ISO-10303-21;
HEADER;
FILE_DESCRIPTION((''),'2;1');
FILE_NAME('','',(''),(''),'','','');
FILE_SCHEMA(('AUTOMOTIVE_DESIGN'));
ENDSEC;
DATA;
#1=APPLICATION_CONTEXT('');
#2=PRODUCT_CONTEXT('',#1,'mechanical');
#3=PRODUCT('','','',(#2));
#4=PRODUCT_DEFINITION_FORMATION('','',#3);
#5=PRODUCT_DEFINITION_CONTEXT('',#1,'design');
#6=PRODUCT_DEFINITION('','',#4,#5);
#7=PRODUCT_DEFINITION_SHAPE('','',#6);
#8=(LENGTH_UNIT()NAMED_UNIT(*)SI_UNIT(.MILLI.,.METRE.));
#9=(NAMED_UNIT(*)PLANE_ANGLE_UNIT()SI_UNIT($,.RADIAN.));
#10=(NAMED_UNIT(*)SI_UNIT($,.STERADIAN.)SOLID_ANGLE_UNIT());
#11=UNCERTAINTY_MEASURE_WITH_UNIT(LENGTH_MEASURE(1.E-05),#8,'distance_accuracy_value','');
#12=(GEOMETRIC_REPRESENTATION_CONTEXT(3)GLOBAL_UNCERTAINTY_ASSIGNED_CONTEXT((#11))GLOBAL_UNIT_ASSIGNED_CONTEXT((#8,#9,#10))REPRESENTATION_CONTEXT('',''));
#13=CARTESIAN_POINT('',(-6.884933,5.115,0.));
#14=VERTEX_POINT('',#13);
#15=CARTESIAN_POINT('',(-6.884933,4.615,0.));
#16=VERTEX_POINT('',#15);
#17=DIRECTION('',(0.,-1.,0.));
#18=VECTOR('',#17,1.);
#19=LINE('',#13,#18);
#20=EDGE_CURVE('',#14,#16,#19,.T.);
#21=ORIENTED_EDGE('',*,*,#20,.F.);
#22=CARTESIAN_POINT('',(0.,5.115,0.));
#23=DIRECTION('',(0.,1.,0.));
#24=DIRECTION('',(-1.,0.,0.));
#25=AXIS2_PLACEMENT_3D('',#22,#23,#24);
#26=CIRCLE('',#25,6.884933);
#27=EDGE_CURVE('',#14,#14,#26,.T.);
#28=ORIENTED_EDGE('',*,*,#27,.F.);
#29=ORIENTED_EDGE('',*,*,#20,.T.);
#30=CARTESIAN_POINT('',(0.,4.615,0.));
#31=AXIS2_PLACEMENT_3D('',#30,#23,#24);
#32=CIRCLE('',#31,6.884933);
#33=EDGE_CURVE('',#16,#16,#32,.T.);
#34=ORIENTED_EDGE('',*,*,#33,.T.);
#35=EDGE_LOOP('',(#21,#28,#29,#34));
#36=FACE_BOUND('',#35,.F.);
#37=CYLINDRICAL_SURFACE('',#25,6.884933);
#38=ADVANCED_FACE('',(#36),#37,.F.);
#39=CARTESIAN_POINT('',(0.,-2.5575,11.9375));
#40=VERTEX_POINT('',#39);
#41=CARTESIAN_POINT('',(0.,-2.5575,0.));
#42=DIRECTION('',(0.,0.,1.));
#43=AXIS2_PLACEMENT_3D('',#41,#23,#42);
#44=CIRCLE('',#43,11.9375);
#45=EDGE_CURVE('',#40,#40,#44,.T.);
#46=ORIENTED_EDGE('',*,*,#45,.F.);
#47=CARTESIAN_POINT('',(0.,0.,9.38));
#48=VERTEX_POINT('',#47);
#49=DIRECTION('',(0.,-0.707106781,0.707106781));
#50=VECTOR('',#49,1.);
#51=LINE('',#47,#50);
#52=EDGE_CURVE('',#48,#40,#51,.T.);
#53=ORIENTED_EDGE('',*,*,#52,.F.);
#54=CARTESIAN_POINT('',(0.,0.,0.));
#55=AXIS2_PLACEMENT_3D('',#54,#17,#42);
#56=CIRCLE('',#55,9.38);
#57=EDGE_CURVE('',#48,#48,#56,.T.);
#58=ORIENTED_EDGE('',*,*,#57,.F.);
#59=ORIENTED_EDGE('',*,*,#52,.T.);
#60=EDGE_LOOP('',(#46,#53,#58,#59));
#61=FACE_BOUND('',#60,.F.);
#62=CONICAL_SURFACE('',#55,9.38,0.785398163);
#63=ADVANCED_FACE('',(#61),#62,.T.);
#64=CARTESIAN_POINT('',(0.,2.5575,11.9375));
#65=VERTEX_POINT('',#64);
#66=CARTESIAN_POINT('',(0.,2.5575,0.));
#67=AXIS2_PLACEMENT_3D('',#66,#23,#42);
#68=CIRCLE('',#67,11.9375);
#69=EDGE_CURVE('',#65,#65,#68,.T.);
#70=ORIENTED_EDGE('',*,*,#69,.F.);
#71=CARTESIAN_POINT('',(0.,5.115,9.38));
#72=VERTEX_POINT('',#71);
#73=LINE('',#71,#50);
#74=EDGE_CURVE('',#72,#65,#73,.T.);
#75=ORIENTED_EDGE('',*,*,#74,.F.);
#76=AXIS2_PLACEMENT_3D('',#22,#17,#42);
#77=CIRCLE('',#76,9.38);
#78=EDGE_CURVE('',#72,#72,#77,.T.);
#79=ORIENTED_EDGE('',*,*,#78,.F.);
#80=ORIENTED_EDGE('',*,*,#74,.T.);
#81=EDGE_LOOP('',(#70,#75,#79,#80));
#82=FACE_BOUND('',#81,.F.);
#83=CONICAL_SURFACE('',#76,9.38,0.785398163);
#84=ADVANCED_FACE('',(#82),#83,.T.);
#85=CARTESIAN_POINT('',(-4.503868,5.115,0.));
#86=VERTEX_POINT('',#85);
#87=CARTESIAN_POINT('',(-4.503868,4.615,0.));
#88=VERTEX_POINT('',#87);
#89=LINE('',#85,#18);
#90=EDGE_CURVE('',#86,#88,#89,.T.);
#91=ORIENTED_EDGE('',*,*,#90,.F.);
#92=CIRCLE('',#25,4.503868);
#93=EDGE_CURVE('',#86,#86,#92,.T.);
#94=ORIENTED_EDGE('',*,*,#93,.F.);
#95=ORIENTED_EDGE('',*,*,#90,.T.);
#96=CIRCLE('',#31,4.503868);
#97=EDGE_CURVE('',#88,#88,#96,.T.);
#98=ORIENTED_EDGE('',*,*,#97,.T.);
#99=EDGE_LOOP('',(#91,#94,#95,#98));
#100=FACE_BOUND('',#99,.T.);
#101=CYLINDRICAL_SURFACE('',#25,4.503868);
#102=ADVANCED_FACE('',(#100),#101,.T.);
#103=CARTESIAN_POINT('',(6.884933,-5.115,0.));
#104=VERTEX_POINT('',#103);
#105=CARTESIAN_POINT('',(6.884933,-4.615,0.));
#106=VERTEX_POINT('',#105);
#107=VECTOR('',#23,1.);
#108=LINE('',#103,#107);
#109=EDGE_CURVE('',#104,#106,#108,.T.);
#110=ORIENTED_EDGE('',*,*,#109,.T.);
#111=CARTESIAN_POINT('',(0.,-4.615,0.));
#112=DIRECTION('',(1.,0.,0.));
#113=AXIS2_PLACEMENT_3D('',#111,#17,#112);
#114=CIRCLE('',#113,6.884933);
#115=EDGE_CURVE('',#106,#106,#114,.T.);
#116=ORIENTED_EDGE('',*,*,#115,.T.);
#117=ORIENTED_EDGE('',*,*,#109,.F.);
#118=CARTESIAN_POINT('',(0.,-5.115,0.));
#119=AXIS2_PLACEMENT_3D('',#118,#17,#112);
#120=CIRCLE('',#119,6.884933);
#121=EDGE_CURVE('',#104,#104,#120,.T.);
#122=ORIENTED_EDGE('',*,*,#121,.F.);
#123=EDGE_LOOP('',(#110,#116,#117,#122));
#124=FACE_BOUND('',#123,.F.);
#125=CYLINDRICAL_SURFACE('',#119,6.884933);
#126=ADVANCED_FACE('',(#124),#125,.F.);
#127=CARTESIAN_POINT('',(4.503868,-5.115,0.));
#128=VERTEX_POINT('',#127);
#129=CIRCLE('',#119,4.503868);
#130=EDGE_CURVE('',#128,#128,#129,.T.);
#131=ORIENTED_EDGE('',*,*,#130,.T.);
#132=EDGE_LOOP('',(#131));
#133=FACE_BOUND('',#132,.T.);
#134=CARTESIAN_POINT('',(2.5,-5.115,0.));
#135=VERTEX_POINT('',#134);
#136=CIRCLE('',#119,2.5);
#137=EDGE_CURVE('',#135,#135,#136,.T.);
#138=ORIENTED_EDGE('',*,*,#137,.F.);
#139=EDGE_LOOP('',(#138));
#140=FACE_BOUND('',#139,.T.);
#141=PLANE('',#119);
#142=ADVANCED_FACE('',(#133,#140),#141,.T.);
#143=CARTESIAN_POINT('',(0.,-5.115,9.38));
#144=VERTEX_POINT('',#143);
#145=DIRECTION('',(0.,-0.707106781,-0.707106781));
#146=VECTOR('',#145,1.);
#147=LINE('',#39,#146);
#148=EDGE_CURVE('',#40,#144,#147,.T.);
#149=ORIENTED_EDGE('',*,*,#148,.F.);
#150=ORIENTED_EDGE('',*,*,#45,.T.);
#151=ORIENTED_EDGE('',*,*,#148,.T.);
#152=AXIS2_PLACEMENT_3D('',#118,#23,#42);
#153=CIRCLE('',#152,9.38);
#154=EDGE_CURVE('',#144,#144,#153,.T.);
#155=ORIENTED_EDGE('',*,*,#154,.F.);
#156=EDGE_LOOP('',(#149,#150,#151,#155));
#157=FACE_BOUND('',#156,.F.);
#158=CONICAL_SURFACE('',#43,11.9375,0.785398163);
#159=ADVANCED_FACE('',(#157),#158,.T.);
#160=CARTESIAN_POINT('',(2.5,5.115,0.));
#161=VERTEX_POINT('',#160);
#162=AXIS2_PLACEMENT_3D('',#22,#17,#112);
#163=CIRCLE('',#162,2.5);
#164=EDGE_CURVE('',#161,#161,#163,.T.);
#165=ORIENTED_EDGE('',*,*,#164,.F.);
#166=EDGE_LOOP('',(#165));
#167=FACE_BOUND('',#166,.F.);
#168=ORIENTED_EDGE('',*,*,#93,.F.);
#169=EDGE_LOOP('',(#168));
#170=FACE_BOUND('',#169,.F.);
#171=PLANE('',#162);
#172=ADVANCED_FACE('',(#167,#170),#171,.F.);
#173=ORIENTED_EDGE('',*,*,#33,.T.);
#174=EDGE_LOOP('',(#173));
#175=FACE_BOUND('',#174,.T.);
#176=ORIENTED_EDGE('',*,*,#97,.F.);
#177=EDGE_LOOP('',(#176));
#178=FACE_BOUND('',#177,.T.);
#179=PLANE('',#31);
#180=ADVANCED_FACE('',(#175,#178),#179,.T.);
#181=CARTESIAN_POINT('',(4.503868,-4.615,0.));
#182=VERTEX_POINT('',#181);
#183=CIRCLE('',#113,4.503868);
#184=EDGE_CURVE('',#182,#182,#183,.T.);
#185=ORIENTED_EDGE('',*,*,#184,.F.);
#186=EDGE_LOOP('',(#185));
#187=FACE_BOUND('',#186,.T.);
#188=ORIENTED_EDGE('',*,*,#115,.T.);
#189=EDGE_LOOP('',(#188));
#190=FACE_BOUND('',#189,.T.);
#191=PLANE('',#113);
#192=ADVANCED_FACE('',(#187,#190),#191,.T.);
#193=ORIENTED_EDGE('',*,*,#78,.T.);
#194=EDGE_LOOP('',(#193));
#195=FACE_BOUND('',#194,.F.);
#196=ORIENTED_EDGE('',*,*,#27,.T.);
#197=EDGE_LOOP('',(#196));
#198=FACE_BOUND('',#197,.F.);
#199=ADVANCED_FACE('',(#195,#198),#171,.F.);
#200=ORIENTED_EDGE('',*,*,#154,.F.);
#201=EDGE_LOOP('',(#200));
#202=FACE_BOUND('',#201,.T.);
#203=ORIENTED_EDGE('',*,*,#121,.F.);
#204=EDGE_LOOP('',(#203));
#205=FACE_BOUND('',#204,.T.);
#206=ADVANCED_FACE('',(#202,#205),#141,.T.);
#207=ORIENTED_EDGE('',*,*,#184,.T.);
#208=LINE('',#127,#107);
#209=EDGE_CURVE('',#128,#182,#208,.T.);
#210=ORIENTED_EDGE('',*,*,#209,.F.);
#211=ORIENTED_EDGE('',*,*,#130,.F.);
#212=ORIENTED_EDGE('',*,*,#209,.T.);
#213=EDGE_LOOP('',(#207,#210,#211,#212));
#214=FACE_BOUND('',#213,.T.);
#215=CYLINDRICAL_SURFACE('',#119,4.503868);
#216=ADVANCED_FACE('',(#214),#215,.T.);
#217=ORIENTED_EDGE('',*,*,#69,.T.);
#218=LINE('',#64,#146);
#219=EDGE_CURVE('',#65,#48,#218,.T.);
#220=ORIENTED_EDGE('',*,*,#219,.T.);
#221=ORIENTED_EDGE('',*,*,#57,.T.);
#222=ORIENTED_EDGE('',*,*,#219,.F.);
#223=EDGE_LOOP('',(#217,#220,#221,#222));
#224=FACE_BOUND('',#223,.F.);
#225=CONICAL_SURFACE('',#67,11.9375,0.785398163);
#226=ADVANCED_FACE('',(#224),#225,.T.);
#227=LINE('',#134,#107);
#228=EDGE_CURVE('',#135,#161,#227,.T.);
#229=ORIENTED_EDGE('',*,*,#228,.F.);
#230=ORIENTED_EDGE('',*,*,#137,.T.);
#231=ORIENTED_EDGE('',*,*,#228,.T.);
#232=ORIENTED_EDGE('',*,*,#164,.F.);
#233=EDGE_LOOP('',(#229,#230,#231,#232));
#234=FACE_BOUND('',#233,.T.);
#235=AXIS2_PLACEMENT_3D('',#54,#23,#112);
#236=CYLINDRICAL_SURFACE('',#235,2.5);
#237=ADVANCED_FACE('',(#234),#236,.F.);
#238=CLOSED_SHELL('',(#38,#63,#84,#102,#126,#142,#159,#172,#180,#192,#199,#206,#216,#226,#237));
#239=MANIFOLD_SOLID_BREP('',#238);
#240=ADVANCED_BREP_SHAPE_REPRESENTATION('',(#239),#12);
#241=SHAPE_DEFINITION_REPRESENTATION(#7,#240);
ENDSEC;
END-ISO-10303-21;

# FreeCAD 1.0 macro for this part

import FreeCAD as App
import Part
import Sketcher


def add_polygon(sketch, points):
    """Adds a closed chain of lines whose ends are joined by coincident constraints."""
    first, n = sketch.GeometryCount, len(points)
    for a, b in zip(points, points[1:] + points[:1]):
        sketch.addGeometry(Part.LineSegment(App.Vector(*a, 0), App.Vector(*b, 0)), False)
    for i in range(n):
        sketch.addConstraint(Sketcher.Constraint("Coincident", first + i, 2, first + (i + 1) % n, 1))

doc = App.newDocument("Part")
body = doc.addObject("PartDesign::Body", "Body")

sketch1 = doc.addObject("Sketcher::SketchObject", "Sketch")
body.addObject(sketch1)
sketch1.AttachmentSupport = (doc.XZ_Plane, [""])
sketch1.MapMode = "FlatFace"
sketch1.addGeometry(Part.Circle(App.Vector(0, 0, 0), App.Vector(0, 0, 1), 9.4), False)
sketch1.addGeometry(Part.Circle(App.Vector(0, 0, 0), App.Vector(0, 0, 1), 2.5), False)
sketch1.addConstraint(Sketcher.Constraint("Coincident", 0, 3, -1, 1))
sketch1.addConstraint(Sketcher.Constraint("Coincident", 1, 3, -1, 1))
sketch1.addConstraint(Sketcher.Constraint("Diameter", 1, 5.0))
sketch1.addConstraint(Sketcher.Constraint("Diameter", 0, 18.76))
pad1 = doc.addObject("PartDesign::Pad", "Pad")
body.addObject(pad1)
pad1.Profile = sketch1
pad1.Length = 10.23
pad1.Midplane = True

sketch2 = doc.addObject("Sketcher::SketchObject", "Sketch001")
body.addObject(sketch2)
sketch2.AttachmentSupport = (doc.YZ_Plane, [""])
sketch2.MapMode = "FlatFace"
add_polygon(sketch2, [(-5.1, 9.4), (0, 9.4), (-2.6, 11.9)])
add_polygon(sketch2, [(2.6, 11.9), (0, 9.4), (5.1, 9.4)])
sketch2.addConstraint(Sketcher.Constraint("Horizontal", 0))
sketch2.addConstraint(Sketcher.Constraint("Horizontal", 4))
sketch2.addConstraint(Sketcher.Constraint("Coincident", 3, 2, 0, 2))
sketch2.addConstraint(Sketcher.Constraint("Symmetric", 1, 2, 5, 2, -2))
sketch2.addConstraint(Sketcher.Constraint("PointOnObject", 0, 2, -2))
sketch2.addConstraint(Sketcher.Constraint("Perpendicular", 1, 2))
sketch2.addConstraint(Sketcher.Constraint("Parallel", 2, 3))
sketch2.addConstraint(Sketcher.Constraint("Perpendicular", 3, 5))
sketch2.addConstraint(Sketcher.Constraint("DistanceX", 0, 1, 0, 2, 5.115))
sketch2.addConstraint(Sketcher.Constraint("DistanceY", -1, 1, 0, 2, 9.38))
revolution = doc.addObject("PartDesign::Revolution", "Revolution")
body.addObject(revolution)
revolution.Profile = sketch2
revolution.ReferenceAxis = (sketch2, ["H_Axis"])
revolution.Angle = 360

sketch3 = doc.addObject("Sketcher::SketchObject", "Sketch002")
body.addObject(sketch3)
sketch3.AttachmentSupport = (doc.XZ_Plane, [""])
sketch3.MapMode = "FlatFace"
sketch3.AttachmentOffset = App.Placement(App.Vector(0, 0, -5.115), App.Rotation())
sketch3.addGeometry(Part.Circle(App.Vector(0, 0, 0), App.Vector(0, 0, 1), 6.9), False)
sketch3.addGeometry(Part.Circle(App.Vector(0, 0, 0), App.Vector(0, 0, 1), 4.5), False)
sketch3.addConstraint(Sketcher.Constraint("Coincident", 0, 3, -1, 1))
sketch3.addConstraint(Sketcher.Constraint("Coincident", 1, 3, -1, 1))
sketch3.addConstraint(Sketcher.Constraint("Diameter", 0, 13.769866))
sketch3.addConstraint(Sketcher.Constraint("Diameter", 1, 9.007736))
pocket1 = doc.addObject("PartDesign::Pocket", "Pocket")
body.addObject(pocket1)
pocket1.Profile = sketch3
pocket1.Length = 0.5
pocket1.Reversed = True

sketch4 = doc.addObject("Sketcher::SketchObject", "Sketch003")
body.addObject(sketch4)
sketch4.AttachmentSupport = (doc.XZ_Plane, [""])
sketch4.MapMode = "FlatFace"
sketch4.AttachmentOffset = App.Placement(App.Vector(0, 0, 5.115), App.Rotation())
sketch4.addGeometry(Part.Circle(App.Vector(0, 0, 0), App.Vector(0, 0, 1), 6.9), False)
sketch4.addGeometry(Part.Circle(App.Vector(0, 0, 0), App.Vector(0, 0, 1), 4.5), False)
sketch4.addConstraint(Sketcher.Constraint("Coincident", 0, 3, -1, 1))
sketch4.addConstraint(Sketcher.Constraint("Coincident", 1, 3, -1, 1))
sketch4.addConstraint(Sketcher.Constraint("Diameter", 0, 13.769866))
sketch4.addConstraint(Sketcher.Constraint("Diameter", 1, 9.007736))
pocket2 = doc.addObject("PartDesign::Pocket", "Pocket001")
body.addObject(pocket2)
pocket2.Profile = sketch4
pocket2.Length = 0.5

doc.recompute()
